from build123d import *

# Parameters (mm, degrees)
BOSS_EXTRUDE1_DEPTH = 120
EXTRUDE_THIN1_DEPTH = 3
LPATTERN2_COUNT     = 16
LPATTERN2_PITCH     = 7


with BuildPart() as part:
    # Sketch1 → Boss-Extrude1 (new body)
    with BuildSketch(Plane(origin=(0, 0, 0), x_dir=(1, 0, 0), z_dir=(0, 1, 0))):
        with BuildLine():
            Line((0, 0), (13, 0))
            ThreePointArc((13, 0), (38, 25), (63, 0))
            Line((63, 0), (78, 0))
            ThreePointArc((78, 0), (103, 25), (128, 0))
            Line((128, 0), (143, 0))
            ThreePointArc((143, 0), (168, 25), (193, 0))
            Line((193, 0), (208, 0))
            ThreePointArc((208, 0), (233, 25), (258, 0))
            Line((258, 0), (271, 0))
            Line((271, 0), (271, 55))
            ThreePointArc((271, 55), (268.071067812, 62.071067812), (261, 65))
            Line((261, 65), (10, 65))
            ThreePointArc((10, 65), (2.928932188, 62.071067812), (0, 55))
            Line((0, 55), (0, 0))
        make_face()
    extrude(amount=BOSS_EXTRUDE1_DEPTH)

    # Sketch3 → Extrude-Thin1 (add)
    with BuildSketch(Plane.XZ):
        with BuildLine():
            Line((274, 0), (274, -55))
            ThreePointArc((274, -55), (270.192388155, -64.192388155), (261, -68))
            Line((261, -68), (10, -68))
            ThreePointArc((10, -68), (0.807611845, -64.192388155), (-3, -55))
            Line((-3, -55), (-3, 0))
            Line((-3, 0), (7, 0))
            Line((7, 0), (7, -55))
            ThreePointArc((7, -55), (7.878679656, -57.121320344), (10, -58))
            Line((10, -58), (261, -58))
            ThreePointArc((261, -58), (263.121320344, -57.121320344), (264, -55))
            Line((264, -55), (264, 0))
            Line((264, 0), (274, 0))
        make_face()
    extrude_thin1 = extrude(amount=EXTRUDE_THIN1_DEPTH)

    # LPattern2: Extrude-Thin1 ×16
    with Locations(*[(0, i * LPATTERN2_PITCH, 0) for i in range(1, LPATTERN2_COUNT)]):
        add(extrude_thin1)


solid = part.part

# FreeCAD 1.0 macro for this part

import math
import FreeCAD as App
import Part
import Sketcher
from FreeCAD import Vector

doc = App.newDocument("Part")
body = doc.addObject("PartDesign::Body", "Body")

# Sketch on XZ plane
sketch1 = body.newObject("Sketcher::SketchObject", "Sketch")
sketch1.AttachmentSupport = (doc.getObject("XZ_Plane"), [""])
sketch1.MapMode = "FlatFace"
sketch1.addGeometry([
    Part.LineSegment(Vector(0, 0, 0), Vector(13, 0, 0)),  # 0
    Part.ArcOfCircle(Part.Circle(Vector(38, 0, 0), Vector(0, 0, 1), 25), math.radians(180), math.radians(360)),  # 1
    Part.LineSegment(Vector(63, 0, 0), Vector(78, 0, 0)),  # 2
    Part.ArcOfCircle(Part.Circle(Vector(103, 0, 0), Vector(0, 0, 1), 25), math.radians(180), math.radians(360)),  # 3
    Part.LineSegment(Vector(128, 0, 0), Vector(143, 0, 0)),  # 4
    Part.ArcOfCircle(Part.Circle(Vector(168, 0, 0), Vector(0, 0, 1), 25), math.radians(180), math.radians(360)),  # 5
    Part.LineSegment(Vector(193, 0, 0), Vector(208, 0, 0)),  # 6
    Part.ArcOfCircle(Part.Circle(Vector(233, 0, 0), Vector(0, 0, 1), 25), math.radians(180), math.radians(360)),  # 7
    Part.LineSegment(Vector(258, 0, 0), Vector(271, 0, 0)),  # 8
    Part.LineSegment(Vector(271, 0, 0), Vector(271, -55, 0)),  # 9
    Part.ArcOfCircle(Part.Circle(Vector(261, -55, 0), Vector(0, 0, 1), 10), math.radians(-90), math.radians(0)),  # 10
    Part.LineSegment(Vector(261, -65, 0), Vector(10, -65, 0)),  # 11
    Part.ArcOfCircle(Part.Circle(Vector(10, -55, 0), Vector(0, 0, 1), 10), math.radians(180), math.radians(270)),  # 12
    Part.LineSegment(Vector(0, -55, 0), Vector(0, 0, 0)),  # 13
], False)
sketch1.addConstraint([
    Sketcher.Constraint("Coincident", 0, 2, 1, 1),
    Sketcher.Constraint("Coincident", 1, 2, 2, 1),
    Sketcher.Constraint("Coincident", 2, 2, 3, 1),
    Sketcher.Constraint("Coincident", 3, 2, 4, 1),
    Sketcher.Constraint("Coincident", 4, 2, 5, 1),
    Sketcher.Constraint("Coincident", 5, 2, 6, 1),
    Sketcher.Constraint("Coincident", 6, 2, 7, 1),
    Sketcher.Constraint("Coincident", 7, 2, 8, 1),
    Sketcher.Constraint("Coincident", 8, 2, 9, 1),
    Sketcher.Constraint("Tangent", 9, 2, 10, 2),
    Sketcher.Constraint("Tangent", 10, 1, 11, 1),
    Sketcher.Constraint("Tangent", 11, 2, 12, 2),
    Sketcher.Constraint("Tangent", 12, 1, 13, 1),
    Sketcher.Constraint("Coincident", 13, 2, 0, 1),
    Sketcher.Constraint("Horizontal", 0),
    Sketcher.Constraint("Horizontal", 2),
    Sketcher.Constraint("Horizontal", 4),
    Sketcher.Constraint("Horizontal", 6),
    Sketcher.Constraint("Horizontal", 8),
    Sketcher.Constraint("Vertical", 9),
    Sketcher.Constraint("Horizontal", 11),
    Sketcher.Constraint("Vertical", 13),
    Sketcher.Constraint("Coincident", 13, 2, -1, 1),
    Sketcher.Constraint("Equal", 1, 3),
    Sketcher.Constraint("Equal", 3, 5),
    Sketcher.Constraint("Equal", 5, 7),
    Sketcher.Constraint("Equal", 10, 12),
    Sketcher.Constraint("PointOnObject", 1, 3, -1),
    Sketcher.Constraint("PointOnObject", 3, 3, -1),
    Sketcher.Constraint("PointOnObject", 5, 3, -1),
    Sketcher.Constraint("PointOnObject", 7, 3, -1),
    Sketcher.Constraint("PointOnObject", 1, 2, -1),
    Sketcher.Constraint("PointOnObject", 3, 2, -1),
    Sketcher.Constraint("PointOnObject", 5, 2, -1),
    Sketcher.Constraint("PointOnObject", 7, 2, -1),
    Sketcher.Constraint("Equal", 2, 4),
    Sketcher.Constraint("Equal", 4, 6),
    Sketcher.Constraint("Equal", 0, 8),
    Sketcher.Constraint("Radius", 1, 25.0),
    Sketcher.Constraint("Radius", 10, 10.0),
    Sketcher.Constraint("DistanceX", 0, 1, 0, 2, 13.0),
    Sketcher.Constraint("DistanceX", 2, 1, 2, 2, 15.0),
    Sketcher.Constraint("DistanceY", 9, 2, 9, 1, 55.0),
])
pad1 = body.newObject("PartDesign::Pad", "Pad")
pad1.Profile = sketch1
pad1.Length = 120
pad1.Reversed = True

# Sketch on XZ plane
sketch2 = body.newObject("Sketcher::SketchObject", "Sketch001")
sketch2.AttachmentSupport = (doc.getObject("XZ_Plane"), [""])
sketch2.MapMode = "FlatFace"
sketch2.addGeometry([
    Part.LineSegment(Vector(274, -55, 0), Vector(274, 0, 0)),  # 0
    Part.LineSegment(Vector(274, 0, 0), Vector(264, 0, 0)),  # 1
    Part.LineSegment(Vector(264, 0, 0), Vector(264, -55, 0)),  # 2
    Part.ArcOfCircle(Part.Circle(Vector(261, -55, 0), Vector(0, 0, 1), 3), math.radians(-90), math.radians(0)),  # 3
    Part.LineSegment(Vector(261, -58, 0), Vector(10, -58, 0)),  # 4
    Part.ArcOfCircle(Part.Circle(Vector(10, -55, 0), Vector(0, 0, 1), 3), math.radians(180), math.radians(270)),  # 5
    Part.LineSegment(Vector(7, -55, 0), Vector(7, 0, 0)),  # 6
    Part.LineSegment(Vector(7, 0, 0), Vector(-3, 0, 0)),  # 7
    Part.LineSegment(Vector(-3, 0, 0), Vector(-3, -55, 0)),  # 8
    Part.ArcOfCircle(Part.Circle(Vector(10, -55, 0), Vector(0, 0, 1), 13), math.radians(-180), math.radians(-90)),  # 9
    Part.LineSegment(Vector(10, -68, 0), Vector(261, -68, 0)),  # 10
    Part.ArcOfCircle(Part.Circle(Vector(261, -55, 0), Vector(0, 0, 1), 13), math.radians(-90), math.radians(0)),  # 11
], False)
sketch2.addConstraint([
    Sketcher.Constraint("Coincident", 0, 2, 1, 1),
    Sketcher.Constraint("Coincident", 1, 2, 2, 1),
    Sketcher.Constraint("Tangent", 2, 2, 3, 2),
    Sketcher.Constraint("Tangent", 3, 1, 4, 1),
    Sketcher.Constraint("Tangent", 4, 2, 5, 2),
    Sketcher.Constraint("Tangent", 5, 1, 6, 1),
    Sketcher.Constraint("Coincident", 6, 2, 7, 1),
    Sketcher.Constraint("Coincident", 7, 2, 8, 1),
    Sketcher.Constraint("Tangent", 8, 2, 9, 1),
    Sketcher.Constraint("Tangent", 9, 2, 10, 1),
    Sketcher.Constraint("Tangent", 10, 2, 11, 1),
    Sketcher.Constraint("Tangent", 11, 2, 0, 1),
    Sketcher.Constraint("Vertical", 0),
    Sketcher.Constraint("Horizontal", 1),
    Sketcher.Constraint("Vertical", 2),
    Sketcher.Constraint("Horizontal", 4),
    Sketcher.Constraint("Vertical", 6),
    Sketcher.Constraint("Horizontal", 7),
    Sketcher.Constraint("Vertical", 8),
    Sketcher.Constraint("Horizontal", 10),
    Sketcher.Constraint("Coincident", 9, 3, 5, 3),
    Sketcher.Constraint("Coincident", 11, 3, 3, 3),
    Sketcher.Constraint("Equal", 3, 5),
    Sketcher.Constraint("PointOnObject", 0, 2, -1),
    Sketcher.Constraint("PointOnObject", 6, 2, -1),
    Sketcher.Constraint("Radius", 3, 3.0),
    Sketcher.Constraint("Radius", 9, 13.0),
    Sketcher.Constraint("DistanceX", 4, 2, 4, 1, 251.0),
    Sketcher.Constraint("DistanceY", 0, 1, 0, 2, 55.0),
    Sketcher.Constraint("DistanceX", -1, 1, 3, 3, 261.0),
])
pad2 = body.newObject("PartDesign::Pad", "Pad001")
pad2.Profile = sketch2
pad2.Length = 3
doc.recompute()

linearpattern = body.newObject("PartDesign::LinearPattern", "LinearPattern")
linearpattern.Originals = [pad2]
linearpattern.Direction = (doc.getObject("Y_Axis"), [""])
linearpattern.Mode = "offset"
linearpattern.Offset = 7
linearpattern.Occurrences = 16
body.Tip = linearpattern

doc.recompute()
